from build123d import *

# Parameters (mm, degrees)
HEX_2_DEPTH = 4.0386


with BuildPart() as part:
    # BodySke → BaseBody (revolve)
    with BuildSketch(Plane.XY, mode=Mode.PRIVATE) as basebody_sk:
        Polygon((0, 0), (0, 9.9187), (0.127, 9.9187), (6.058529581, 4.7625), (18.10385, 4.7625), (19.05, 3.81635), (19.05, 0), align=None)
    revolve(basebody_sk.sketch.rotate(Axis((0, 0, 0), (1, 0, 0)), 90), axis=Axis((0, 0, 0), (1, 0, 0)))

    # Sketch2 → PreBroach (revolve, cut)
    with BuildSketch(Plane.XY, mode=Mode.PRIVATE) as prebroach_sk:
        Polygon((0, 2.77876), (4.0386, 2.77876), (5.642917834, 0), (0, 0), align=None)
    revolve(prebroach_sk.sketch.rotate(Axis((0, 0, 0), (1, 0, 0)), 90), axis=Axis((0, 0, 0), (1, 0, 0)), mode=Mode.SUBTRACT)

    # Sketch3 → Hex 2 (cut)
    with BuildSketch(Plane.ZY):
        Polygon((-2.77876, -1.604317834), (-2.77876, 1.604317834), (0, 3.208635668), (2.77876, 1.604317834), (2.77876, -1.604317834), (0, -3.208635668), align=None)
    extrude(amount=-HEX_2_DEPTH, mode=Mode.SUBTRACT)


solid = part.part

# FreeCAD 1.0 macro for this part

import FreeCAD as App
import Part
import Sketcher

V = App.Vector
Q = App.Units.Quantity


def add_polygon(sketch, points):
    """Adds a closed chain of lines whose ends are joined by coincident constraints."""
    first, n = sketch.GeometryCount, len(points)
    for a, b in zip(points, points[1:] + points[:1]):
        sketch.addGeometry(Part.LineSegment(App.Vector(*a, 0), App.Vector(*b, 0)), False)
    for i in range(n):
        sketch.addConstraint(Sketcher.Constraint("Coincident", first + i, 2, first + (i + 1) % n, 1))

doc = App.newDocument("Part")
body = doc.addObject("PartDesign::Body", "Body")

# Sketch on XY plane
sketch1 = doc.addObject("Sketcher::SketchObject", "Sketch")
body.addObject(sketch1)
sketch1.AttachmentSupport = (doc.XY_Plane, [""])
sketch1.MapMode = "FlatFace"
add_polygon(sketch1, [(0, 9.92), (0, 0), (19.05, 0), (19.05, 3.82), (18.1, 4.76), (6.06, 4.76), (0.13, 9.92)])  # lines 0-6
sketch1.addConstraint(Sketcher.Constraint("Vertical", 0))
sketch1.addConstraint(Sketcher.Constraint("Horizontal", 1))
sketch1.addConstraint(Sketcher.Constraint("Vertical", 2))
sketch1.addConstraint(Sketcher.Constraint("Horizontal", 4))
sketch1.addConstraint(Sketcher.Constraint("Horizontal", 6))
sketch1.addConstraint(Sketcher.Constraint("Coincident", 0, 2, -1, 1))
sketch1.addConstraint(Sketcher.Constraint("Angle", 3, Q("135 deg")))
sketch1.addConstraint(Sketcher.Constraint("Angle", 5, Q("139 deg")))
sketch1.addConstraint(Sketcher.Constraint("DistanceX", 1, 1, 1, 2, Q("0.75 in")))
sketch1.addConstraint(Sketcher.Constraint("DistanceX", 6, 2, 6, 1, Q("0.005 in")))
sketch1.addConstraint(Sketcher.Constraint("DistanceY", 0, 2, 0, 1, Q("0.3905 in")))
sketch1.addConstraint(Sketcher.Constraint("DistanceY", -1, 1, 3, 2, Q("0.1875 in")))
sketch1.addConstraint(Sketcher.Constraint("DistanceX", 4, 2, 4, 1, 12.04532))
revolution = doc.addObject("PartDesign::Revolution", "Revolution")
body.addObject(revolution)
revolution.Profile = sketch1
revolution.ReferenceAxis = (sketch1, ["H_Axis"])
revolution.Angle = 360

# Sketch on XY plane
sketch2 = doc.addObject("Sketcher::SketchObject", "Sketch001")
body.addObject(sketch2)
sketch2.AttachmentSupport = (doc.XY_Plane, [""])
sketch2.MapMode = "FlatFace"
add_polygon(sketch2, [(4, 2.8), (0, 2.8), (0, 0), (5.6, 0)])  # lines 0-3
sketch2.addConstraint(Sketcher.Constraint("Horizontal", 0))
sketch2.addConstraint(Sketcher.Constraint("Vertical", 1))
sketch2.addConstraint(Sketcher.Constraint("Horizontal", 2))
sketch2.addConstraint(Sketcher.Constraint("Coincident", 1, 2, -1, 1))
sketch2.addConstraint(Sketcher.Constraint("Angle", 3, Q("120 deg")))
sketch2.addConstraint(Sketcher.Constraint("DistanceX", 0, 2, 0, 1, Q("0.159 in")))
sketch2.addConstraint(Sketcher.Constraint("DistanceY", 1, 2, 1, 1, Q("0.1094 in")))
groove = doc.addObject("PartDesign::Groove", "Groove")
body.addObject(groove)
groove.Profile = sketch2
groove.ReferenceAxis = (sketch2, ["H_Axis"])
groove.Angle = 360

# Sketch on YZ plane
sketch3 = doc.addObject("Sketcher::SketchObject", "Sketch002")
body.addObject(sketch3)
sketch3.AttachmentSupport = (doc.YZ_Plane, [""])
sketch3.MapMode = "FlatFace"
add_polygon(sketch3, [(1.6, -2.8), (-1.6, -2.8), (-3.2, 0), (-1.6, 2.8), (1.6, 2.8), (3.2, 0)])  # lines 0-5
sketch3.addConstraint(Sketcher.Constraint("Horizontal", 0))
sketch3.addConstraint(Sketcher.Constraint("Horizontal", 3))
sketch3.addConstraint(Sketcher.Constraint("Symmetric", 0, 2, 3, 2, -1, 1))
sketch3.addConstraint(Sketcher.Constraint("Symmetric", 1, 2, 4, 2, -1, 1))
sketch3.addConstraint(Sketcher.Constraint("PointOnObject", 1, 2, -1))
sketch3.addConstraint(Sketcher.Constraint("Parallel", 2, 5))
sketch3.addConstraint(Sketcher.Constraint("Vertical", 0, 2, 2, 2))
sketch3.addConstraint(Sketcher.Constraint("Angle", 1, Q("120 deg")))
sketch3.addConstraint(Sketcher.Constraint("DistanceY", 0, 2, -1, 1, Q("0.1094 in")))
sketch3.addConstraint(Sketcher.Constraint("DistanceX", 0, 2, 0, 1, 3.208636))
pocket1 = doc.addObject("PartDesign::Pocket", "Pocket")
body.addObject(pocket1)
pocket1.Profile = sketch3
pocket1.Length = Q("0.159 in")
pocket1.Reversed = True

doc.recompute()
